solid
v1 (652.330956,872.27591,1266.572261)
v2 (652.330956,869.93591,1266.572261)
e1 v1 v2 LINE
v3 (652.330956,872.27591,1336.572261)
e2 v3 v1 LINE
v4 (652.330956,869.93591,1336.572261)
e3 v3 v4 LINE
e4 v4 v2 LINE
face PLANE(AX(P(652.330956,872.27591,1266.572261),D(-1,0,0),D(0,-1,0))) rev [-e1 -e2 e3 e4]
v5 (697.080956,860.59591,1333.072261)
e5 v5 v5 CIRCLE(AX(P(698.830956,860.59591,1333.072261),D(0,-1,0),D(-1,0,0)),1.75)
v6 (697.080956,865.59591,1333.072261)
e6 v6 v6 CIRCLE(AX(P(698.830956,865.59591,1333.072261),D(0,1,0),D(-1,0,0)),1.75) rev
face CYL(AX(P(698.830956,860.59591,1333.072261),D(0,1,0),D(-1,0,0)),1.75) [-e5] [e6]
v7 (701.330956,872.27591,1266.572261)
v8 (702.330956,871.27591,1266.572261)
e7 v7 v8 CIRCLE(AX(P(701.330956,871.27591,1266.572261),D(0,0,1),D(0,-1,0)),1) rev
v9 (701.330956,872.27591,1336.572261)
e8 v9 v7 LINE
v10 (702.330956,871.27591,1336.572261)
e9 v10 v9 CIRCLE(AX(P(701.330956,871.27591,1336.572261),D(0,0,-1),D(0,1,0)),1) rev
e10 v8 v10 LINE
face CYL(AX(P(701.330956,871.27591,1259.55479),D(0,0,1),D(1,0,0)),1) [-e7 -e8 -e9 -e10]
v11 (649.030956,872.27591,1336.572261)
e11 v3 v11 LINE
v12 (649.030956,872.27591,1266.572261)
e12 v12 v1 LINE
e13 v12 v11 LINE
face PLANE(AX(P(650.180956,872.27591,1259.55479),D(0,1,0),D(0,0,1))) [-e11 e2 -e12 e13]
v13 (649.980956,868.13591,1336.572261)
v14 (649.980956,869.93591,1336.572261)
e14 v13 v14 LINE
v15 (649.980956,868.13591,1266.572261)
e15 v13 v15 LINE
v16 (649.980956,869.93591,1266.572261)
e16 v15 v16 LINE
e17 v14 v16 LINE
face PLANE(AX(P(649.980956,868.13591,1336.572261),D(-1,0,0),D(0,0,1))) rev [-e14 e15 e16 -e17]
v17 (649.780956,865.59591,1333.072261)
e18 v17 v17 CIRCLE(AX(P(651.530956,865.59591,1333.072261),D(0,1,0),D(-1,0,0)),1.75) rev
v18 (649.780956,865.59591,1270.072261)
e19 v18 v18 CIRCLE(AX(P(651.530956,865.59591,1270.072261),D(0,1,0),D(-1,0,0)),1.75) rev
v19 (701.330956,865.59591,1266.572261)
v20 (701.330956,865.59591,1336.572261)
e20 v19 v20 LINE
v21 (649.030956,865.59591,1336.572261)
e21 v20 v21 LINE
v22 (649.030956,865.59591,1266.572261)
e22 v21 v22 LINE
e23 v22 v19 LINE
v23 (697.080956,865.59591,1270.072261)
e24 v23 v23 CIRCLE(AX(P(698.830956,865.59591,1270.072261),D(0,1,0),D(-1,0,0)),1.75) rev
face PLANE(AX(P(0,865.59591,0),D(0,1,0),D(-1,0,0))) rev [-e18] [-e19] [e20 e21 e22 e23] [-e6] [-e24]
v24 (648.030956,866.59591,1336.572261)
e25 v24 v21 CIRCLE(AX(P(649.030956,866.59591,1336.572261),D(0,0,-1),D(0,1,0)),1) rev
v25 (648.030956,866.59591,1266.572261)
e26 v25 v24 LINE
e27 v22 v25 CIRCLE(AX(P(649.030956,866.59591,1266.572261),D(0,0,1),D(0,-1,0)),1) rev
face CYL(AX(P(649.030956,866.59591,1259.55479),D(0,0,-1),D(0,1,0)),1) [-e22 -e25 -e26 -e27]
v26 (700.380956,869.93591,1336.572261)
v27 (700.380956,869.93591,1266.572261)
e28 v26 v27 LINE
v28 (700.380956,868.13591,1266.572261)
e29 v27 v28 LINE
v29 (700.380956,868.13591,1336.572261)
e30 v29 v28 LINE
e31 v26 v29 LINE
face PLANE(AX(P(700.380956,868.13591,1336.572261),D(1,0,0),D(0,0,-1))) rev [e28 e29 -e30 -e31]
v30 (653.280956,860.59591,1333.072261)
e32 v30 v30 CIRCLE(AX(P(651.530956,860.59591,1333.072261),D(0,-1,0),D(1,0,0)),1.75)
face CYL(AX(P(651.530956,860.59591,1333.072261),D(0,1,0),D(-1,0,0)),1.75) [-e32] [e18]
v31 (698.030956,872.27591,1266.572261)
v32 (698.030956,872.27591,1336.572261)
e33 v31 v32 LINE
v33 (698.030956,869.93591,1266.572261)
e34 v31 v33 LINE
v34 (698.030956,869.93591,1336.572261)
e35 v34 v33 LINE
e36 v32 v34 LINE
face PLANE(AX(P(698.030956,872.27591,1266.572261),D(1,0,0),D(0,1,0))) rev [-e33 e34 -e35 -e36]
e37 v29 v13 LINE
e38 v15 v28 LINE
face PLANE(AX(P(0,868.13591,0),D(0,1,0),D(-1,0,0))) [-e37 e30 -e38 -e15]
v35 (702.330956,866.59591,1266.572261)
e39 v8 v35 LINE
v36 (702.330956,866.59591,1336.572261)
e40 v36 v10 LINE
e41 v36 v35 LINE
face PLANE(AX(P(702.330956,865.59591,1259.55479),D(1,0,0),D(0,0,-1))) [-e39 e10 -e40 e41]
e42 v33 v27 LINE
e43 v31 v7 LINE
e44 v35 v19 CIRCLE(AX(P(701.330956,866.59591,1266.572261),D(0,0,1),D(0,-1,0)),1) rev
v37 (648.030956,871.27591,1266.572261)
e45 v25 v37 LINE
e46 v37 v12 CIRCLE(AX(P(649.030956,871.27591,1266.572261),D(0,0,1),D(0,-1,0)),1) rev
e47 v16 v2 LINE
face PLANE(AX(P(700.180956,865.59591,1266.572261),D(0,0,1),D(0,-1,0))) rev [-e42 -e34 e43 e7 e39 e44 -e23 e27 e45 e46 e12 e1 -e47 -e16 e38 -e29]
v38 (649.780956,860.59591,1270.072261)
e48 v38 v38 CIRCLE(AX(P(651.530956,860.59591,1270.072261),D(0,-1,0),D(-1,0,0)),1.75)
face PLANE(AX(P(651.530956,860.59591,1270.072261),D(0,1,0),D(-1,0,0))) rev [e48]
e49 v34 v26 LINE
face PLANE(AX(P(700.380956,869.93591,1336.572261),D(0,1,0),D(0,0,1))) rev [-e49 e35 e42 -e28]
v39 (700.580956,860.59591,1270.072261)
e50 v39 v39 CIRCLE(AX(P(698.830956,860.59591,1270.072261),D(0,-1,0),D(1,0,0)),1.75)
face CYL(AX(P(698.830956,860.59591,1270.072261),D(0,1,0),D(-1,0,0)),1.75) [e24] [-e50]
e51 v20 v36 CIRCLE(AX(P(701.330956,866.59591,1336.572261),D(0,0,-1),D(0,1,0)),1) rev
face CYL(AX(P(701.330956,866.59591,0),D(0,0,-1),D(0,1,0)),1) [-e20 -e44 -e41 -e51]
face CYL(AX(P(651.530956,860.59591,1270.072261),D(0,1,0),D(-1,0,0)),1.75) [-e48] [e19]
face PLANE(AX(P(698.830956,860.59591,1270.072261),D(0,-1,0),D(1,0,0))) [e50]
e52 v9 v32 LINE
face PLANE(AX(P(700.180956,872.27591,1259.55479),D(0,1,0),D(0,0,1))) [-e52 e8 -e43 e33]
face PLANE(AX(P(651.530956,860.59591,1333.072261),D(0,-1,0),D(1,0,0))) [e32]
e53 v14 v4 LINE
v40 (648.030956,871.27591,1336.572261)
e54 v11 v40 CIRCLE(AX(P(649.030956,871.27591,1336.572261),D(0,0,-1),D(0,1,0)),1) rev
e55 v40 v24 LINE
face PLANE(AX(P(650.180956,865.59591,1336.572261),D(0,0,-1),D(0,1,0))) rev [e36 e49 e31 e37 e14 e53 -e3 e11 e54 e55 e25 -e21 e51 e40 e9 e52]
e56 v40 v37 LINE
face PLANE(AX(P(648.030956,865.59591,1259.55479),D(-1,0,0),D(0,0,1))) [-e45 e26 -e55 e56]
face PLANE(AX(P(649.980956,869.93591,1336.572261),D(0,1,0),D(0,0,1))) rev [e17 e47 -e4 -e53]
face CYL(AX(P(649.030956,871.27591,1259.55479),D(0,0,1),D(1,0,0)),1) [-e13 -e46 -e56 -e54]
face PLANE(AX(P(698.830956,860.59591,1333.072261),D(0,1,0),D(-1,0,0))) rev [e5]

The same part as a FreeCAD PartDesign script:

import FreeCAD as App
import Part
import Sketcher
from FreeCAD import Vector
Q = App.Units.Quantity


def edges_at(feature, points):
    """Names of the edges that pass closest to the given points."""
    edges = feature.Shape.Edges
    near = lambda p: min(range(len(edges)), key=lambda i: edges[i].distToShape(Part.Vertex(*p))[0])
    return sorted({f"Edge{near(p) + 1}" for p in points})

doc = App.newDocument("Part")
body = doc.addObject("PartDesign::Body", "Body")

# Sketch on XZ plane
sketch1 = doc.addObject("Sketcher::SketchObject", "Sketch")
body.addObject(sketch1)
sketch1.AttachmentSupport = (doc.XZ_Plane, [""])
sketch1.MapMode = "FlatFace"
sketch1.AttachmentOffset = App.Placement(Vector(0, 0, -868.13591), App.Rotation())
sketch1.addGeometry([
    Part.LineSegment(Vector(650.180956, 1336.572261, 0), Vector(650.180956, 1266.572261, 0)),
    Part.LineSegment(Vector(650.180956, 1266.572261, 0), Vector(700.180956, 1266.572261, 0)),
    Part.LineSegment(Vector(700.180956, 1266.572261, 0), Vector(700.180956, 1336.572261, 0)),
    Part.LineSegment(Vector(700.180956, 1336.572261, 0), Vector(650.180956, 1336.572261, 0)),
], False)
sketch1.addConstraint([
    Sketcher.Constraint("Coincident", 0, 2, 1, 1),
    Sketcher.Constraint("Coincident", 1, 2, 2, 1),
    Sketcher.Constraint("Coincident", 2, 2, 3, 1),
    Sketcher.Constraint("Coincident", 3, 2, 0, 1),
    Sketcher.Constraint("Vertical", 0),
    Sketcher.Constraint("Horizontal", 1),
    Sketcher.Constraint("Vertical", 2),
    Sketcher.Constraint("Horizontal", 3),
    Sketcher.Constraint("DistanceX", 1, 1, 1, 2, Q("50 mm")),
    Sketcher.Constraint("DistanceY", 0, 2, 0, 1, Q("70 mm")),
    Sketcher.Constraint("DistanceY", -1, 1, 0, 2, Q("1266.572261 mm")),
    Sketcher.Constraint("DistanceX", -1, 1, 0, 2, Q("650.180956 mm")),
])
pad1 = doc.addObject("PartDesign::Pad", "Pad")
body.addObject(pad1)
pad1.Profile = sketch1
pad1.Length = 2.54
body2 = doc.addObject("PartDesign::Body", "Body001")

# Sketch on XZ plane
sketch2 = doc.addObject("Sketcher::SketchObject", "Sketch001")
body2.addObject(sketch2)
sketch2.AttachmentSupport = (doc.getObject("XZ_Plane001"), [""])
sketch2.MapMode = "FlatFace"
sketch2.AttachmentOffset = App.Placement(Vector(0, 0, -869.73591), App.Rotation())
sketch2.addGeometry([
    Part.LineSegment(Vector(650.180956, 1266.572261, 0), Vector(650.180956, 1336.572261, 0)),
    Part.LineSegment(Vector(650.180956, 1336.572261, 0), Vector(652.330956, 1336.572261, 0)),
    Part.LineSegment(Vector(652.330956, 1336.572261, 0), Vector(652.330956, 1266.572261, 0)),
    Part.LineSegment(Vector(652.330956, 1266.572261, 0), Vector(650.180956, 1266.572261, 0)),
], False)
sketch2.addConstraint([
    Sketcher.Constraint("Coincident", 0, 2, 1, 1),
    Sketcher.Constraint("Coincident", 1, 2, 2, 1),
    Sketcher.Constraint("Coincident", 2, 2, 3, 1),
    Sketcher.Constraint("Coincident", 3, 2, 0, 1),
    Sketcher.Constraint("Vertical", 0),
    Sketcher.Constraint("Horizontal", 1),
    Sketcher.Constraint("Vertical", 2),
    Sketcher.Constraint("Horizontal", 3),
    Sketcher.Constraint("DistanceY", 0, 1, 0, 2, Q("70 mm")),
    Sketcher.Constraint("DistanceX", 1, 1, 1, 2, Q("2.15 mm")),
    Sketcher.Constraint("DistanceY", -1, 1, 0, 2, Q("1336.572261 mm")),
    Sketcher.Constraint("DistanceX", -1, 1, 0, 2, Q("650.180956 mm")),
])
pad2 = doc.addObject("PartDesign::Pad", "Pad001")
body2.addObject(pad2)
pad2.Profile = sketch2
pad2.Length = 2.54
pad2.Reversed = True
body3 = doc.addObject("PartDesign::Body", "Body002")

# Sketch on XZ plane
sketch3 = doc.addObject("Sketcher::SketchObject", "Sketch002")
body3.addObject(sketch3)
sketch3.AttachmentSupport = (doc.getObject("XZ_Plane002"), [""])
sketch3.MapMode = "FlatFace"
sketch3.AttachmentOffset = App.Placement(Vector(0, 0, -869.73591), App.Rotation())
sketch3.addGeometry([
    Part.LineSegment(Vector(698.030956, 1266.572261, 0), Vector(698.030956, 1336.572261, 0)),
    Part.LineSegment(Vector(698.030956, 1336.572261, 0), Vector(700.180956, 1336.572261, 0)),
    Part.LineSegment(Vector(700.180956, 1336.572261, 0), Vector(700.180956, 1266.572261, 0)),
    Part.LineSegment(Vector(700.180956, 1266.572261, 0), Vector(698.030956, 1266.572261, 0)),
], False)
sketch3.addConstraint([
    Sketcher.Constraint("Coincident", 0, 2, 1, 1),
    Sketcher.Constraint("Coincident", 1, 2, 2, 1),
    Sketcher.Constraint("Coincident", 2, 2, 3, 1),
    Sketcher.Constraint("Coincident", 3, 2, 0, 1),
    Sketcher.Constraint("Vertical", 0),
    Sketcher.Constraint("Horizontal", 1),
    Sketcher.Constraint("Vertical", 2),
    Sketcher.Constraint("Horizontal", 3),
    Sketcher.Constraint("DistanceY", 0, 1, 0, 2, Q("70 mm")),
    Sketcher.Constraint("DistanceX", 1, 1, 1, 2, Q("2.15 mm")),
    Sketcher.Constraint("DistanceY", -1, 1, 0, 2, Q("1336.572261 mm")),
    Sketcher.Constraint("DistanceX", -1, 1, 0, 2, Q("698.030956 mm")),
])
pad3 = doc.addObject("PartDesign::Pad", "Pad002")
body3.addObject(pad3)
pad3.Profile = sketch3
pad3.Length = 2.54
pad3.Reversed = True
body.AllowCompound = True
doc.recompute()

boolean = doc.addObject("PartDesign::Boolean", "Boolean")
body.addObject(boolean)
boolean.Type = "Fuse"
boolean.addObjects([body2])
doc.recompute()

boolean2 = doc.addObject("PartDesign::Boolean", "Boolean001")
body.addObject(boolean2)
boolean2.Type = "Fuse"
boolean2.addObjects([body3])

# Sketch on XY plane
sketch4 = doc.addObject("Sketcher::SketchObject", "Sketch003")
body.addObject(sketch4)
sketch4.AttachmentSupport = (doc.XY_Plane, [""])
sketch4.MapMode = "FlatFace"
sketch4.AttachmentOffset = App.Placement(Vector(0, 0, 1336.572261), App.Rotation())
sketch4.addGeometry([
    Part.LineSegment(Vector(648.030956, 872.27591, 0), Vector(648.030956, 865.59591, 0)),  # 0
    Part.LineSegment(Vector(648.030956, 865.59591, 0), Vector(650.180956, 865.59591, 0)),  # 1
    Part.LineSegment(Vector(650.180956, 865.59591, 0), Vector(650.180956, 872.27591, 0)),  # 2
    Part.LineSegment(Vector(650.180956, 872.27591, 0), Vector(648.030956, 872.27591, 0)),  # 3
    Part.LineSegment(Vector(700.180956, 872.27591, 0), Vector(700.180956, 865.59591, 0)),  # 4
    Part.LineSegment(Vector(700.180956, 865.59591, 0), Vector(702.330956, 865.59591, 0)),  # 5
    Part.LineSegment(Vector(702.330956, 865.59591, 0), Vector(702.330956, 872.27591, 0)),  # 6
    Part.LineSegment(Vector(702.330956, 872.27591, 0), Vector(700.180956, 872.27591, 0)),  # 7
], False)
sketch4.addConstraint([
    Sketcher.Constraint("Coincident", 0, 2, 1, 1),
    Sketcher.Constraint("Coincident", 1, 2, 2, 1),
    Sketcher.Constraint("Coincident", 2, 2, 3, 1),
    Sketcher.Constraint("Coincident", 3, 2, 0, 1),
    Sketcher.Constraint("Coincident", 4, 2, 5, 1),
    Sketcher.Constraint("Coincident", 5, 2, 6, 1),
    Sketcher.Constraint("Coincident", 6, 2, 7, 1),
    Sketcher.Constraint("Coincident", 7, 2, 4, 1),
    Sketcher.Constraint("Vertical", 0),
    Sketcher.Constraint("Horizontal", 1),
    Sketcher.Constraint("Vertical", 2),
    Sketcher.Constraint("Horizontal", 3),
    Sketcher.Constraint("Vertical", 4),
    Sketcher.Constraint("Horizontal", 5),
    Sketcher.Constraint("Vertical", 6),
    Sketcher.Constraint("Horizontal", 7),
    Sketcher.Constraint("Horizontal", 1, 2, 4, 2),
    Sketcher.Constraint("Horizontal", 3, 2, 6, 2),
    Sketcher.Constraint("Equal", 3, 5),
    Sketcher.Constraint("DistanceX", 1, 2, 4, 2, Q("50 mm")),
    Sketcher.Constraint("DistanceX", 1, 1, 1, 2, Q("2.15 mm")),
    Sketcher.Constraint("DistanceY", 0, 2, 0, 1, Q("6.68 mm")),
    Sketcher.Constraint("DistanceY", -1, 1, 0, 2, Q("865.59591 mm")),
    Sketcher.Constraint("DistanceX", -1, 1, 0, 2, Q("648.030956 mm")),
])
pad4 = doc.addObject("PartDesign::Pad", "Pad003")
body.addObject(pad4)
pad4.Profile = sketch4
pad4.Length = 70
pad4.Reversed = True

# Sketch on XY plane
sketch5 = doc.addObject("Sketcher::SketchObject", "Sketch004")
body.addObject(sketch5)
sketch5.AttachmentSupport = (doc.XY_Plane, [""])
sketch5.MapMode = "FlatFace"
sketch5.AttachmentOffset = App.Placement(Vector(0, 0, 1266.572261), App.Rotation())
sketch5.addGeometry([
    Part.LineSegment(Vector(698.030956, 868.13591, 0), Vector(698.030956, 869.93591, 0)),  # 0
    Part.LineSegment(Vector(698.030956, 869.93591, 0), Vector(700.380956, 869.93591, 0)),  # 1
    Part.LineSegment(Vector(700.380956, 869.93591, 0), Vector(700.380956, 868.13591, 0)),  # 2
    Part.LineSegment(Vector(700.380956, 868.13591, 0), Vector(698.030956, 868.13591, 0)),  # 3
    Part.LineSegment(Vector(652.330956, 869.93591, 0), Vector(652.330956, 868.13591, 0)),  # 4
    Part.LineSegment(Vector(652.330956, 868.13591, 0), Vector(649.980956, 868.13591, 0)),  # 5
    Part.LineSegment(Vector(649.980956, 868.13591, 0), Vector(649.980956, 869.93591, 0)),  # 6
    Part.LineSegment(Vector(649.980956, 869.93591, 0), Vector(652.330956, 869.93591, 0)),  # 7
], False)
sketch5.addConstraint([
    Sketcher.Constraint("Coincident", 0, 2, 1, 1),
    Sketcher.Constraint("Coincident", 1, 2, 2, 1),
    Sketcher.Constraint("Coincident", 2, 2, 3, 1),
    Sketcher.Constraint("Coincident", 3, 2, 0, 1),
    Sketcher.Constraint("Coincident", 4, 2, 5, 1),
    Sketcher.Constraint("Coincident", 5, 2, 6, 1),
    Sketcher.Constraint("Coincident", 6, 2, 7, 1),
    Sketcher.Constraint("Coincident", 7, 2, 4, 1),
    Sketcher.Constraint("Vertical", 0),
    Sketcher.Constraint("Horizontal", 1),
    Sketcher.Constraint("Vertical", 2),
    Sketcher.Constraint("Horizontal", 3),
    Sketcher.Constraint("Vertical", 4),
    Sketcher.Constraint("Horizontal", 5),
    Sketcher.Constraint("Vertical", 6),
    Sketcher.Constraint("Horizontal", 7),
    Sketcher.Constraint("Horizontal", 3, 2, 4, 2),
    Sketcher.Constraint("Horizontal", 1, 2, 6, 2),
    Sketcher.Constraint("Equal", 3, 5),
    Sketcher.Constraint("DistanceY", 0, 1, 0, 2, Q("1.8 mm")),
    Sketcher.Constraint("DistanceX", 1, 1, 1, 2, Q("2.35 mm")),
    Sketcher.Constraint("DistanceX", 4, 2, 3, 2, Q("45.7 mm")),
    Sketcher.Constraint("DistanceY", -1, 1, 0, 2, Q("869.93591 mm")),
    Sketcher.Constraint("DistanceX", -1, 1, 0, 2, Q("698.030956 mm")),
])
pocket1 = doc.addObject("PartDesign::Pocket", "Pocket")
body.addObject(pocket1)
pocket1.Profile = sketch5
pocket1.Type = "ThroughAll"
pocket1.Reversed = True

# Sketch on XZ plane
sketch6 = doc.addObject("Sketcher::SketchObject", "Sketch005")
body.addObject(sketch6)
sketch6.AttachmentSupport = (doc.XZ_Plane, [""])
sketch6.MapMode = "FlatFace"
sketch6.AttachmentOffset = App.Placement(Vector(0, 0, -865.59591), App.Rotation())
sketch6.addGeometry([
    Part.Circle(Vector(651.530956, 1333.072261, 0), Vector(0, 0, 1), 1.75),
    Part.Circle(Vector(698.830956, 1333.072261, 0), Vector(0, 0, 1), 1.75),
    Part.Circle(Vector(698.830956, 1270.072261, 0), Vector(0, 0, 1), 1.75),
    Part.Circle(Vector(651.530956, 1270.072261, 0), Vector(0, 0, 1), 1.75),
], False)
sketch6.addConstraint([
    Sketcher.Constraint("Equal", 0, 1),
    Sketcher.Constraint("Equal", 1, 2),
    Sketcher.Constraint("Equal", 2, 3),
    Sketcher.Constraint("Horizontal", 0, 3, 1, 3),
    Sketcher.Constraint("Horizontal", 2, 3, 3, 3),
    Sketcher.Constraint("Vertical", 1, 3, 2, 3),
    Sketcher.Constraint("Vertical", 0, 3, 3, 3),
    Sketcher.Constraint("Diameter", 0, Q("3.5 mm")),
    Sketcher.Constraint("DistanceY", 2, 3, 1, 3, Q("63 mm")),
    Sketcher.Constraint("DistanceX", 0, 3, 1, 3, Q("47.3 mm")),
    Sketcher.Constraint("DistanceY", -1, 1, 0, 3, Q("1333.072261 mm")),
    Sketcher.Constraint("DistanceX", -1, 1, 0, 3, Q("651.530956 mm")),
])
pad5 = doc.addObject("PartDesign::Pad", "Pad004")
body.addObject(pad5)
pad5.Profile = sketch6
pad5.Length = 5
doc.recompute()

fillet = doc.addObject("PartDesign::Fillet", "Fillet")
body.addObject(fillet)
fillet.Base = (pad5, edges_at(pad5, [
    (702.331, 865.596, 1301.572),
    (702.331, 872.276, 1301.572),
    (648.031, 865.596, 1301.572),
    (648.031, 872.276, 1301.572),
]))
fillet.Radius = 1

doc.recompute()
